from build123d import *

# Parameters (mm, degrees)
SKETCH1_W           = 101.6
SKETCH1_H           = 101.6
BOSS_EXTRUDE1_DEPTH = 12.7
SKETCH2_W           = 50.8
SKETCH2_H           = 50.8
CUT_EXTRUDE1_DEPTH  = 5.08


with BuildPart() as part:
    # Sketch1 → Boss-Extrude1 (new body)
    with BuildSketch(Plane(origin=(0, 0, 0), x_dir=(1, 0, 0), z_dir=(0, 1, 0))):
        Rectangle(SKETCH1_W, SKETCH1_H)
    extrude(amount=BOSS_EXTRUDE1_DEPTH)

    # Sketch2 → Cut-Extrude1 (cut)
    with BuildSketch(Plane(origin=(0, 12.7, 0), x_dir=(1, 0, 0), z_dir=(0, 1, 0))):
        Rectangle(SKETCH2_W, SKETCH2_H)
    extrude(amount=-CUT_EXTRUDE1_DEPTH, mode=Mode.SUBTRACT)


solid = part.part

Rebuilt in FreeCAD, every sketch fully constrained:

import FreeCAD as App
import Part
import Sketcher

V = App.Vector
Q = App.Units.Quantity

doc = App.newDocument("Part")
params = doc.addObject("Spreadsheet::Sheet", "Params")
for row, (alias, value) in enumerate([
    ("sketch1_width", "4 in"),
    ("pad1_length", "0.5 in"),
    ("sketch2_width", "2 in"),
    ("pocket1_length", "0.2 in"),
], start=1):
    params.set(f"A{row}", alias)
    params.set(f"B{row}", "=" + value)
    params.setAlias(f"B{row}", alias)

body = doc.addObject("PartDesign::Body", "Body")

# Sketch on XZ plane
sketch1 = body.newObject("Sketcher::SketchObject", "Sketch")
sketch1.AttachmentSupport = (doc.getObject("XZ_Plane"), [""])
sketch1.MapMode = "FlatFace"
sketch1.addGeometry([
    Part.LineSegment(V(-51, -51, 0), V(-51, 51, 0)),
    Part.LineSegment(V(-51, 51, 0), V(51, 51, 0)),
    Part.LineSegment(V(51, 51, 0), V(51, -51, 0)),
    Part.LineSegment(V(51, -51, 0), V(-51, -51, 0)),
], False)
sketch1.addConstraint([
    Sketcher.Constraint("Coincident", 0, 2, 1, 1),
    Sketcher.Constraint("Coincident", 1, 2, 2, 1),
    Sketcher.Constraint("Coincident", 2, 2, 3, 1),
    Sketcher.Constraint("Coincident", 3, 2, 0, 1),
    Sketcher.Constraint("Vertical", 0),
    Sketcher.Constraint("Horizontal", 1),
    Sketcher.Constraint("Vertical", 2),
    Sketcher.Constraint("Horizontal", 3),
    Sketcher.Constraint("Symmetric", 0, 2, 2, 2, -1, 1),
    Sketcher.Constraint("Equal", 3, 0),
    Sketcher.Constraint("DistanceX", 1, 1, 1, 2, Q("4 in")),
])
sketch1.setExpression("Constraints[10]", "Params.sketch1_width")
pad1 = body.newObject("PartDesign::Pad", "Pad")
pad1.Profile = sketch1
pad1.setExpression("Length", "Params.pad1_length")
pad1.Reversed = True

# Sketch on XZ plane
sketch2 = body.newObject("Sketcher::SketchObject", "Sketch001")
sketch2.AttachmentSupport = (doc.getObject("XZ_Plane"), [""])
sketch2.MapMode = "FlatFace"
sketch2.AttachmentOffset = App.Placement(V(0, 0, -0.5 * 25.4), App.Rotation())
sketch2.addGeometry([
    Part.LineSegment(V(-25, -25, 0), V(-25, 25, 0)),
    Part.LineSegment(V(-25, 25, 0), V(25, 25, 0)),
    Part.LineSegment(V(25, 25, 0), V(25, -25, 0)),
    Part.LineSegment(V(25, -25, 0), V(-25, -25, 0)),
], False)
sketch2.addConstraint([
    Sketcher.Constraint("Coincident", 0, 2, 1, 1),
    Sketcher.Constraint("Coincident", 1, 2, 2, 1),
    Sketcher.Constraint("Coincident", 2, 2, 3, 1),
    Sketcher.Constraint("Coincident", 3, 2, 0, 1),
    Sketcher.Constraint("Vertical", 0),
    Sketcher.Constraint("Horizontal", 1),
    Sketcher.Constraint("Vertical", 2),
    Sketcher.Constraint("Horizontal", 3),
    Sketcher.Constraint("Symmetric", 0, 2, 2, 2, -1, 1),
    Sketcher.Constraint("Equal", 3, 0),
    Sketcher.Constraint("DistanceX", 1, 1, 1, 2, Q("2 in")),
])
sketch2.setExpression("Constraints[10]", "Params.sketch2_width")
pocket1 = body.newObject("PartDesign::Pocket", "Pocket")
pocket1.Profile = sketch2
pocket1.setExpression("Length", "Params.pocket1_length")
pocket1.Reversed = True

doc.recompute()
